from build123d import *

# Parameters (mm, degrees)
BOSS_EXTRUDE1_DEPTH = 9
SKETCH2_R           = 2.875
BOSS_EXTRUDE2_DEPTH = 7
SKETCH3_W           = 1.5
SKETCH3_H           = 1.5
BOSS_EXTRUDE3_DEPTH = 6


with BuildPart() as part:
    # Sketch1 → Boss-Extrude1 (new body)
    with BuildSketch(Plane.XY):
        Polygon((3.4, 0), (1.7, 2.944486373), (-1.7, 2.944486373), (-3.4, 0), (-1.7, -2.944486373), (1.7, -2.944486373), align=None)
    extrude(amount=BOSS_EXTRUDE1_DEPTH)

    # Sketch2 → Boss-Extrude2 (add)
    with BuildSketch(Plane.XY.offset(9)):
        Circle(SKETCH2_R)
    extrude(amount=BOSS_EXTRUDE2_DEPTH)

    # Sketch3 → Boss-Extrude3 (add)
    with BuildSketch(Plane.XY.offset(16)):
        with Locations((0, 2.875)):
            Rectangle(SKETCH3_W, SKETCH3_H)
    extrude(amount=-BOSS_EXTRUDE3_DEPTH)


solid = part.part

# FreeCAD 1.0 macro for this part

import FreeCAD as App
import Part
import Sketcher

V = App.Vector
Q = App.Units.Quantity

doc = App.newDocument("Part")
params = doc.addObject("Spreadsheet::Sheet", "Params")
for row, (alias, value) in enumerate([
    ("sketch1_width", "3.4 mm"),
    ("sketch1_length", "3.4 mm"),
    ("pad1_length", "9 mm"),
    ("sketch2_diameter", "5.75 mm"),
    ("pad2_length", "7 mm"),
    ("sketch3_width", "1.5 mm"),
    ("pad3_length", "6 mm"),
], start=1):
    params.set(f"A{row}", alias)
    params.set(f"B{row}", "=" + value)
    params.setAlias(f"B{row}", alias)

body = doc.addObject("PartDesign::Body", "Body")

# Sketch on XY plane
sketch1 = body.newObject("Sketcher::SketchObject", "Sketch")
sketch1.AttachmentSupport = (doc.getObject("XY_Plane"), [""])
sketch1.MapMode = "FlatFace"
sketch1.addGeometry([
    Part.LineSegment(V(3.4, 0, 0), V(1.7, 2.9, 0)),  # 0
    Part.LineSegment(V(1.7, 2.9, 0), V(-1.7, 2.9, 0)),  # 1
    Part.LineSegment(V(-1.7, 2.9, 0), V(-3.4, 0, 0)),  # 2
    Part.LineSegment(V(-3.4, 0, 0), V(-1.7, -2.9, 0)),  # 3
    Part.LineSegment(V(-1.7, -2.9, 0), V(1.7, -2.9, 0)),  # 4
    Part.LineSegment(V(1.7, -2.9, 0), V(3.4, 0, 0)),  # 5
], False)
sketch1.addConstraint([
    Sketcher.Constraint("Coincident", 0, 2, 1, 1),
    Sketcher.Constraint("Coincident", 1, 2, 2, 1),
    Sketcher.Constraint("Coincident", 2, 2, 3, 1),
    Sketcher.Constraint("Coincident", 3, 2, 4, 1),
    Sketcher.Constraint("Coincident", 4, 2, 5, 1),
    Sketcher.Constraint("Coincident", 5, 2, 0, 1),
    Sketcher.Constraint("Horizontal", 1),
    Sketcher.Constraint("Horizontal", 4),
    Sketcher.Constraint("Symmetric", 0, 2, 3, 2, -1, 1),
    Sketcher.Constraint("Symmetric", 2, 2, 5, 2, -1, 1),
    Sketcher.Constraint("PointOnObject", 2, 2, -1),
    Sketcher.Constraint("Parallel", 2, 5),
    Sketcher.Constraint("Vertical", 1, 2, 3, 2),
    Sketcher.Constraint("Angle", 0, Q("120 deg")),
    Sketcher.Constraint("DistanceX", 1, 2, 1, 1, Q("3.4 mm")),
    Sketcher.Constraint("Distance", 0, Q("3.4 mm")),
])
sketch1.setExpression("Constraints[14]", "Params.sketch1_width")
sketch1.setExpression("Constraints[15]", "Params.sketch1_length")
pad1 = body.newObject("PartDesign::Pad", "Pad")
pad1.Profile = sketch1
pad1.setExpression("Length", "Params.pad1_length")

# Sketch on XY plane
sketch2 = body.newObject("Sketcher::SketchObject", "Sketch001")
sketch2.AttachmentSupport = (doc.getObject("XY_Plane"), [""])
sketch2.MapMode = "FlatFace"
sketch2.AttachmentOffset = App.Placement(V(0, 0, 9), App.Rotation())
sketch2.addGeometry(Part.Circle(V(0, 0, 0), V(0, 0, 1), 2.9), False)
sketch2.addConstraint([
    Sketcher.Constraint("Coincident", 0, 3, -1, 1),
    Sketcher.Constraint("Diameter", 0, Q("5.75 mm")),
])
sketch2.setExpression("Constraints[1]", "Params.sketch2_diameter")
pad2 = body.newObject("PartDesign::Pad", "Pad001")
pad2.Profile = sketch2
pad2.setExpression("Length", "Params.pad2_length")

# Sketch on XY plane
sketch3 = body.newObject("Sketcher::SketchObject", "Sketch002")
sketch3.AttachmentSupport = (doc.getObject("XY_Plane"), [""])
sketch3.MapMode = "FlatFace"
sketch3.AttachmentOffset = App.Placement(V(0, 0, 16), App.Rotation())
sketch3.addGeometry([
    Part.LineSegment(V(-0.8, 3.6, 0), V(-0.8, 2.1, 0)),
    Part.LineSegment(V(-0.8, 2.1, 0), V(0.8, 2.1, 0)),
    Part.LineSegment(V(0.8, 2.1, 0), V(0.8, 3.6, 0)),
    Part.LineSegment(V(0.8, 3.6, 0), V(-0.8, 3.6, 0)),
], False)
sketch3.addConstraint([
    Sketcher.Constraint("Coincident", 0, 2, 1, 1),
    Sketcher.Constraint("Coincident", 1, 2, 2, 1),
    Sketcher.Constraint("Coincident", 2, 2, 3, 1),
    Sketcher.Constraint("Coincident", 3, 2, 0, 1),
    Sketcher.Constraint("Vertical", 0),
    Sketcher.Constraint("Horizontal", 1),
    Sketcher.Constraint("Vertical", 2),
    Sketcher.Constraint("Horizontal", 3),
    Sketcher.Constraint("Equal", 3, 0),
    Sketcher.Constraint("DistanceX", 1, 1, 1, 2, Q("1.5 mm")),
    Sketcher.Constraint("DistanceX", 0, 2, -1, 1, Q("0.75 mm")),
    Sketcher.Constraint("DistanceY", -1, 1, 0, 2, Q("2.125 mm")),
])
sketch3.setExpression("Constraints[9]", "Params.sketch3_width")
pad3 = body.newObject("PartDesign::Pad", "Pad002")
pad3.Profile = sketch3
pad3.setExpression("Length", "Params.pad3_length")
pad3.Reversed = True

doc.recompute()
